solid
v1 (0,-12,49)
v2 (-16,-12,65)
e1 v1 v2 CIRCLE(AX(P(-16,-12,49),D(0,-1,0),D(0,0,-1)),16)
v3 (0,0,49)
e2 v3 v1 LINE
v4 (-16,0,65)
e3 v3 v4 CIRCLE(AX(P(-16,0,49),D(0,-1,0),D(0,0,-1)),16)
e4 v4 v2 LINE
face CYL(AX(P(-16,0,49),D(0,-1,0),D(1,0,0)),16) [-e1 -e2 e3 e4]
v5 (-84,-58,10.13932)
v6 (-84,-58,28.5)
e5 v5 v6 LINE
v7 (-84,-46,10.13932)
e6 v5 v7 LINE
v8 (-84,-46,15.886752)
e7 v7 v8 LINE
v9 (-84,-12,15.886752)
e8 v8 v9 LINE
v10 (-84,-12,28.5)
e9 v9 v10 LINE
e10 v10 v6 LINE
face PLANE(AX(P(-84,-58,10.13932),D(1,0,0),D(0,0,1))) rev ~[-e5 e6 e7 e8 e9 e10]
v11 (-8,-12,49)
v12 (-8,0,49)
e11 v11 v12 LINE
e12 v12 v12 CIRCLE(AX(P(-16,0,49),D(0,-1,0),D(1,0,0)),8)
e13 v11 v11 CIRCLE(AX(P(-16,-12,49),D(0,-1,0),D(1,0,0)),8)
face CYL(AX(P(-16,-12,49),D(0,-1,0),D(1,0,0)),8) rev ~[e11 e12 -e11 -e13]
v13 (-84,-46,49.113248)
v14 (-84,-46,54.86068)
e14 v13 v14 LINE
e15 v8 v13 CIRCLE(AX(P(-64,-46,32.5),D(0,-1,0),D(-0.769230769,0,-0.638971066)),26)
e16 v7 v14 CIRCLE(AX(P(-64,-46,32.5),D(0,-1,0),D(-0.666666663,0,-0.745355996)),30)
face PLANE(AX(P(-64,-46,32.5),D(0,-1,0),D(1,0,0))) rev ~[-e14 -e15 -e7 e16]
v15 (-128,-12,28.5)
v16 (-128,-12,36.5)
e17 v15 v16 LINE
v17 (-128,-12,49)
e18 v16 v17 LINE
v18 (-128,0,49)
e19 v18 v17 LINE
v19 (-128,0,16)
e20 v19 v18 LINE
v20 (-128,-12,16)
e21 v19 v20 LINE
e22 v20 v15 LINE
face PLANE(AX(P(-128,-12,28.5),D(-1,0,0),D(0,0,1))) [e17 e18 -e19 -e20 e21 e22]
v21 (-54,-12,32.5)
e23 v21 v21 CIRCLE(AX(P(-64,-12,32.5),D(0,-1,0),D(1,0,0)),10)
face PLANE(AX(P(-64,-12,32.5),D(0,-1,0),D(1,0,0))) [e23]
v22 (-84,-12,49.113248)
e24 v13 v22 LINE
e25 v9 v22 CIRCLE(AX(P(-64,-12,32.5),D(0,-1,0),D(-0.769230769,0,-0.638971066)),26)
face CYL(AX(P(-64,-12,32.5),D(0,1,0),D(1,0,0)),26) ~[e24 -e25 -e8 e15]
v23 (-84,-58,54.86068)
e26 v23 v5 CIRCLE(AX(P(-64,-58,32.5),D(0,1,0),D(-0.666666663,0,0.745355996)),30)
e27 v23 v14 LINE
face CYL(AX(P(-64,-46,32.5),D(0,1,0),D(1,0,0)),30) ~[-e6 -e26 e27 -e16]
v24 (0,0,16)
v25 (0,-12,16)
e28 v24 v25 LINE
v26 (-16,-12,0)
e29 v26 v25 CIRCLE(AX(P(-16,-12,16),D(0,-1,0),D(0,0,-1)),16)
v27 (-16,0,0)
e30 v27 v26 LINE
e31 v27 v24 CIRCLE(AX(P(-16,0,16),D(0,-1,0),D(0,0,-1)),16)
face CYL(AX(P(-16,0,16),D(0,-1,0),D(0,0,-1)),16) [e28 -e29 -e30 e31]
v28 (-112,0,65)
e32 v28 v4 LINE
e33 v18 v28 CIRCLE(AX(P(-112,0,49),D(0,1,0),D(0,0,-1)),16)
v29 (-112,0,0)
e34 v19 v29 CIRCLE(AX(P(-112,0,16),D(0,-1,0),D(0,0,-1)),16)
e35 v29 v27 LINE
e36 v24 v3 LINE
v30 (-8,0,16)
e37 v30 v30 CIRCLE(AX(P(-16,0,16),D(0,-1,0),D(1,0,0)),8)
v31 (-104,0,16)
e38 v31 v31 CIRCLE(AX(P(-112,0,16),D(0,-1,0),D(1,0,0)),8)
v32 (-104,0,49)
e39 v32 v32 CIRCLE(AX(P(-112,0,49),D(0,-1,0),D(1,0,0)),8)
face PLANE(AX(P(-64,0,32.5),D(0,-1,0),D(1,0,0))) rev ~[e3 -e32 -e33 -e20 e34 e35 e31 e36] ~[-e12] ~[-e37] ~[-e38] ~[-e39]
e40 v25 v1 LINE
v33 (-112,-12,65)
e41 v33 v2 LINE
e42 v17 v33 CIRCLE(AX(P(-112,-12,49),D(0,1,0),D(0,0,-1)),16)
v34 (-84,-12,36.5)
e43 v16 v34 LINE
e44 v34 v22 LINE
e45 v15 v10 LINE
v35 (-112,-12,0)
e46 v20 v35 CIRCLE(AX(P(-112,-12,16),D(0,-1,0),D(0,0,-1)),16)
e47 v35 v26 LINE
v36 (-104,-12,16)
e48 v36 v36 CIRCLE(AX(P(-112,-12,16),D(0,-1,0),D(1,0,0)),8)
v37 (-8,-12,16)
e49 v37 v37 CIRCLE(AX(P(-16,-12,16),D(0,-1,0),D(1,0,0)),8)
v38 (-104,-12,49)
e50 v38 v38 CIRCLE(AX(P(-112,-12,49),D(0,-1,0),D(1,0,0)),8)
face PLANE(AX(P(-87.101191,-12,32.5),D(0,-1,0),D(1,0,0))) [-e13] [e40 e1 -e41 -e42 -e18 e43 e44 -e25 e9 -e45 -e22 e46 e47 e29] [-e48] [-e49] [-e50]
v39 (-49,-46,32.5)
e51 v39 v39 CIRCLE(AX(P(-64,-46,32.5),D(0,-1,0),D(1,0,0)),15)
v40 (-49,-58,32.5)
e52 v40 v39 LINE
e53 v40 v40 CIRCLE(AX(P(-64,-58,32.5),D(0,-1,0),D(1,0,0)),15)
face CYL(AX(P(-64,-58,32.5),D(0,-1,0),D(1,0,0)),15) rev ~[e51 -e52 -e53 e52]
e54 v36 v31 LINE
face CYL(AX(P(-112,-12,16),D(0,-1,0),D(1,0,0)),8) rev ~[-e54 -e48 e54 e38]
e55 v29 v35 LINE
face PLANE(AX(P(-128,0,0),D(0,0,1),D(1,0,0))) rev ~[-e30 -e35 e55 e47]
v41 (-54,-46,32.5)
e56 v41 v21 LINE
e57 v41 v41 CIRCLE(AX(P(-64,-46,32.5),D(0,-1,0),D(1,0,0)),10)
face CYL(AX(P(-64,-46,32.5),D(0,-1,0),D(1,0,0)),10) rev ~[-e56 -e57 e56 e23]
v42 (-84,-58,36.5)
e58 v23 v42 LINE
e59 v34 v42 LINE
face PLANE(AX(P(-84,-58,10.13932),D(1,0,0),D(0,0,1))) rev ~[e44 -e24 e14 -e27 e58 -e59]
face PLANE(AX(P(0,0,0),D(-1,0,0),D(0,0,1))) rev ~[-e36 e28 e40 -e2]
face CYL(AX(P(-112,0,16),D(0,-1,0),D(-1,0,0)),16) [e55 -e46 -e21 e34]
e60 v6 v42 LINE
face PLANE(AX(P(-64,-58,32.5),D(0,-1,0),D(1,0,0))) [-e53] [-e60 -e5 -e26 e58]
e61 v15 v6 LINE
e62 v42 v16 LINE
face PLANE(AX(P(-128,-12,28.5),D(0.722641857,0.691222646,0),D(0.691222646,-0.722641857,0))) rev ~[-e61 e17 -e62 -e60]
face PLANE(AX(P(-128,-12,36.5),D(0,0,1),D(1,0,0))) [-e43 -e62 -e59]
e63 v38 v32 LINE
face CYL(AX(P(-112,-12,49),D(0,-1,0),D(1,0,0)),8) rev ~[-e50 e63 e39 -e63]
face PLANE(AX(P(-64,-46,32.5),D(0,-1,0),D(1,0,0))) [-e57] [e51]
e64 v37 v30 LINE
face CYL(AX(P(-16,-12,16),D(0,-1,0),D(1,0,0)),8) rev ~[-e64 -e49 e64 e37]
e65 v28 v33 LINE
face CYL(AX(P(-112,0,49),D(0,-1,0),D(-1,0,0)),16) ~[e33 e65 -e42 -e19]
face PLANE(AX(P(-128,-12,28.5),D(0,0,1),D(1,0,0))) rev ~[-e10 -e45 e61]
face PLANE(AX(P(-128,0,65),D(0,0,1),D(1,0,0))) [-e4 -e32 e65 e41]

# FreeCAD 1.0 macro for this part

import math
import FreeCAD as App
import Part
import Sketcher
Q = App.Units.Quantity


def edges_at(feature, points):
    """Names of the edges that pass closest to the given points."""
    edges = feature.Shape.Edges
    near = lambda p: min(range(len(edges)), key=lambda i: edges[i].distToShape(Part.Vertex(*p))[0])
    return sorted({f"Edge{near(p) + 1}" for p in points})


def add_polygon(sketch, points):
    """Adds a closed chain of lines whose ends are joined by coincident constraints."""
    first, n = sketch.GeometryCount, len(points)
    for a, b in zip(points, points[1:] + points[:1]):
        sketch.addGeometry(Part.LineSegment(App.Vector(*a, 0), App.Vector(*b, 0)), False)
    for i in range(n):
        sketch.addConstraint(Sketcher.Constraint("Coincident", first + i, 2, first + (i + 1) % n, 1))

doc = App.newDocument("Part")
params = doc.addObject("Spreadsheet::Sheet", "Params")
for row, (alias, value) in enumerate([
    ("sketch1_width", "128 mm"),
    ("sketch1_height", "65 mm"),
    ("pad1_length", "12 mm"),
    ("fillet_radius", "16 mm"),
    ("sketch2_diameter", "52 mm"),
    ("pad2_length", "34 mm"),
    ("sketch3_diameter", "60 mm"),
    ("pad3_length", "12 mm"),
    ("sketch4_diameter", "30 mm"),
    ("pocket1_length", "12 mm"),
    ("sketch5_diameter", "20 mm"),
    ("pocket2_length", "34 mm"),
    ("sketch6_radius", "30.000001 mm"),
    ("pocket3_length", "46 mm"),
    ("sketch7_width", "44 mm"),
    ("sketch7_height", "8 mm"),
    ("pad4_length", "46 mm"),
    ("sketch8_width", "44 mm"),
    ("sketch8_height", "46 mm"),
    ("pocket4_length", "25 mm"),
    ("sketch9_diameter", "16 mm"),
    ("pocket5_length", "25 mm"),
], start=1):
    params.set(f"A{row}", alias)
    params.set(f"B{row}", "=" + value)
    params.setAlias(f"B{row}", alias)

body = doc.addObject("PartDesign::Body", "Body")

sketch1 = body.newObject("Sketcher::SketchObject", "Sketch")
sketch1.AttachmentSupport = (doc.getObject("XZ_Plane"), [""])
sketch1.MapMode = "FlatFace"
add_polygon(sketch1, [(-128, 65), (-128, 0), (0, 0), (0, 65)])
sketch1.addConstraint([
    Sketcher.Constraint("Vertical", 0),
    Sketcher.Constraint("Horizontal", 1),
    Sketcher.Constraint("Vertical", 2),
    Sketcher.Constraint("Horizontal", 3),
    Sketcher.Constraint("Coincident", 1, 2, -1, 1),
    Sketcher.Constraint("DistanceX", 1, 1, 1, 2, Q("128 mm")),
    Sketcher.Constraint("DistanceY", 0, 2, 0, 1, Q("65 mm")),
])
sketch1.setExpression("Constraints[9]", "Params.sketch1_width")
sketch1.setExpression("Constraints[10]", "Params.sketch1_height")
pad1 = body.newObject("PartDesign::Pad", "Pad")
pad1.Profile = sketch1
pad1.setExpression("Length", "Params.pad1_length")
doc.recompute()

fillet = body.newObject("PartDesign::Fillet", "Fillet")
fillet.Base = (pad1, edges_at(pad1, [
    (-128, -6, 65),
    (-128, -6, 0),
    (0, -6, 65),
    (0, -6, 0),
]))
fillet.setExpression("Radius", "Params.fillet_radius")

sketch2 = body.newObject("Sketcher::SketchObject", "Sketch001")
sketch2.AttachmentSupport = (doc.getObject("XZ_Plane"), [""])
sketch2.MapMode = "FlatFace"
sketch2.AttachmentOffset = App.Placement(App.Vector(0, 0, 12), App.Rotation())
sketch2.addGeometry(Part.Circle(App.Vector(-64, 32.5, 0), App.Vector(0, 0, 1), 26), False)
sketch2.addConstraint([
    Sketcher.Constraint("Diameter", 0, Q("52 mm")),
    Sketcher.Constraint("DistanceX", 0, 3, -1, 1, Q("64 mm")),
    Sketcher.Constraint("DistanceY", -1, 1, 0, 3, Q("32.5 mm")),
])
sketch2.setExpression("Constraints[0]", "Params.sketch2_diameter")
pad2 = body.newObject("PartDesign::Pad", "Pad001")
pad2.Profile = sketch2
pad2.setExpression("Length", "Params.pad2_length")

sketch3 = body.newObject("Sketcher::SketchObject", "Sketch002")
sketch3.AttachmentSupport = (doc.getObject("XZ_Plane"), [""])
sketch3.MapMode = "FlatFace"
sketch3.AttachmentOffset = App.Placement(App.Vector(0, 0, 46), App.Rotation())
sketch3.addGeometry(Part.Circle(App.Vector(-64, 32.5, 0), App.Vector(0, 0, 1), 30), False)
sketch3.addConstraint([
    Sketcher.Constraint("Diameter", 0, Q("60 mm")),
    Sketcher.Constraint("DistanceX", 0, 3, -1, 1, Q("64 mm")),
    Sketcher.Constraint("DistanceY", -1, 1, 0, 3, Q("32.5 mm")),
])
sketch3.setExpression("Constraints[0]", "Params.sketch3_diameter")
pad3 = body.newObject("PartDesign::Pad", "Pad002")
pad3.Profile = sketch3
pad3.setExpression("Length", "Params.pad3_length")

sketch4 = body.newObject("Sketcher::SketchObject", "Sketch003")
sketch4.AttachmentSupport = (doc.getObject("XZ_Plane"), [""])
sketch4.MapMode = "FlatFace"
sketch4.AttachmentOffset = App.Placement(App.Vector(0, 0, 58), App.Rotation())
sketch4.addGeometry(Part.Circle(App.Vector(-64, 32.5, 0), App.Vector(0, 0, 1), 15), False)
sketch4.addConstraint([
    Sketcher.Constraint("Diameter", 0, Q("30 mm")),
    Sketcher.Constraint("DistanceX", 0, 3, -1, 1, Q("64 mm")),
    Sketcher.Constraint("DistanceY", -1, 1, 0, 3, Q("32.5 mm")),
])
sketch4.setExpression("Constraints[0]", "Params.sketch4_diameter")
pocket1 = body.newObject("PartDesign::Pocket", "Pocket")
pocket1.Profile = sketch4
pocket1.setExpression("Length", "Params.pocket1_length")

sketch5 = body.newObject("Sketcher::SketchObject", "Sketch004")
sketch5.AttachmentSupport = (doc.getObject("XZ_Plane"), [""])
sketch5.MapMode = "FlatFace"
sketch5.AttachmentOffset = App.Placement(App.Vector(0, 0, 46), App.Rotation())
sketch5.addGeometry(Part.Circle(App.Vector(-64, 32.5, 0), App.Vector(0, 0, 1), 10), False)
sketch5.addConstraint([
    Sketcher.Constraint("Diameter", 0, Q("20 mm")),
    Sketcher.Constraint("DistanceX", 0, 3, -1, 1, Q("64 mm")),
    Sketcher.Constraint("DistanceY", -1, 1, 0, 3, Q("32.5 mm")),
])
sketch5.setExpression("Constraints[0]", "Params.sketch5_diameter")
pocket2 = body.newObject("PartDesign::Pocket", "Pocket001")
pocket2.Profile = sketch5
pocket2.setExpression("Length", "Params.pocket2_length")

sketch6 = body.newObject("Sketcher::SketchObject", "Sketch005")
sketch6.AttachmentSupport = (doc.getObject("XZ_Plane"), [""])
sketch6.MapMode = "FlatFace"
sketch6.AttachmentOffset = App.Placement(App.Vector(0, 0, 58), App.Rotation())
sketch6.addGeometry([
    Part.LineSegment(App.Vector(-84, 10.13932, 0), App.Vector(-84, 54.86068, 0)),
    Part.ArcOfCircle(Part.Circle(App.Vector(-63.999999, 32.5, 0), App.Vector(0, 0, 1), 30.000001), math.radians(131.810315), math.radians(228.189685)),
], False)
sketch6.addConstraint([
    Sketcher.Constraint("Coincident", 0, 1, 1, 2),
    Sketcher.Constraint("Coincident", 1, 1, 0, 2),
    Sketcher.Constraint("Vertical", 0),
    Sketcher.Constraint("Radius", 1, Q("30.000001 mm")),
    Sketcher.Constraint("DistanceX", 1, 3, -1, 1, Q("63.999999 mm")),
    Sketcher.Constraint("DistanceX", 0, 1, -1, 1, Q("84 mm")),
    Sketcher.Constraint("DistanceY", -1, 1, 1, 3, Q("32.5 mm")),
])
sketch6.setExpression("Constraints[3]", "Params.sketch6_radius")
pocket3 = body.newObject("PartDesign::Pocket", "Pocket002")
pocket3.Profile = sketch6
pocket3.setExpression("Length", "Params.pocket3_length")

sketch7 = body.newObject("Sketcher::SketchObject", "Sketch006")
sketch7.AttachmentSupport = (doc.getObject("XZ_Plane"), [""])
sketch7.MapMode = "FlatFace"
sketch7.AttachmentOffset = App.Placement(App.Vector(0, 0, 12), App.Rotation())
add_polygon(sketch7, [(-128, 36.5), (-128, 28.5), (-84, 28.5), (-84, 36.5)])
sketch7.addConstraint([
    Sketcher.Constraint("Vertical", 0),
    Sketcher.Constraint("Horizontal", 1),
    Sketcher.Constraint("Vertical", 2),
    Sketcher.Constraint("Horizontal", 3),
    Sketcher.Constraint("DistanceX", 1, 1, 1, 2, Q("44 mm")),
    Sketcher.Constraint("DistanceY", 0, 2, 0, 1, Q("8 mm")),
    Sketcher.Constraint("DistanceX", 0, 2, -1, 1, Q("128 mm")),
    Sketcher.Constraint("DistanceY", -1, 1, 0, 2, Q("28.5 mm")),
])
sketch7.setExpression("Constraints[8]", "Params.sketch7_width")
sketch7.setExpression("Constraints[9]", "Params.sketch7_height")
pad4 = body.newObject("PartDesign::Pad", "Pad003")
pad4.Profile = sketch7
pad4.setExpression("Length", "Params.pad4_length")

sketch8 = body.newObject("Sketcher::SketchObject", "Sketch007")
sketch8.AttachmentSupport = (doc.getObject("XY_Plane"), [""])
sketch8.MapMode = "FlatFace"
sketch8.AttachmentOffset = App.Placement(App.Vector(0, 0, 28.5), App.Rotation())
add_polygon(sketch8, [(-128, -12), (-84, -58), (-128, -58)])
sketch8.addConstraint([
    Sketcher.Constraint("Horizontal", 1),
    Sketcher.Constraint("Vertical", 2),
    Sketcher.Constraint("DistanceX", 1, 2, 1, 1, Q("44 mm")),
    Sketcher.Constraint("DistanceY", 2, 1, 2, 2, Q("46 mm")),
    Sketcher.Constraint("DistanceX", 0, 2, -1, 1, Q("84 mm")),
    Sketcher.Constraint("DistanceY", 0, 2, -1, 1, Q("58 mm")),
])
sketch8.setExpression("Constraints[5]", "Params.sketch8_width")
sketch8.setExpression("Constraints[6]", "Params.sketch8_height")
pocket4 = body.newObject("PartDesign::Pocket", "Pocket003")
pocket4.Profile = sketch8
pocket4.setExpression("Length", "Params.pocket4_length")
pocket4.Reversed = True

sketch9 = body.newObject("Sketcher::SketchObject", "Sketch008")
sketch9.AttachmentSupport = (doc.getObject("XZ_Plane"), [""])
sketch9.MapMode = "FlatFace"
sketch9.AttachmentOffset = App.Placement(App.Vector(0, 0, 12), App.Rotation())
sketch9.addGeometry([
    Part.Circle(App.Vector(-16, 49, 0), App.Vector(0, 0, 1), 8),
    Part.Circle(App.Vector(-16, 16, 0), App.Vector(0, 0, 1), 8),
    Part.Circle(App.Vector(-112, 49, 0), App.Vector(0, 0, 1), 8),
    Part.Circle(App.Vector(-112, 16, 0), App.Vector(0, 0, 1), 8),
], False)
sketch9.addConstraint([
    Sketcher.Constraint("Equal", 0, 1),
    Sketcher.Constraint("Equal", 1, 2),
    Sketcher.Constraint("Equal", 2, 3),
    Sketcher.Constraint("Horizontal", 0, 3, 2, 3),
    Sketcher.Constraint("Horizontal", 1, 3, 3, 3),
    Sketcher.Constraint("Vertical", 0, 3, 1, 3),
    Sketcher.Constraint("Vertical", 2, 3, 3, 3),
    Sketcher.Constraint("Diameter", 0, Q("16 mm")),
    Sketcher.Constraint("DistanceX", 0, 3, -1, 1, Q("16 mm")),
    Sketcher.Constraint("DistanceY", -1, 1, 0, 3, Q("49 mm")),
    Sketcher.Constraint("DistanceY", -1, 1, 1, 3, Q("16 mm")),
    Sketcher.Constraint("DistanceX", 2, 3, -1, 1, Q("112 mm")),
])
sketch9.setExpression("Constraints[7]", "Params.sketch9_diameter")
pocket5 = body.newObject("PartDesign::Pocket", "Pocket004")
pocket5.Profile = sketch9
pocket5.setExpression("Length", "Params.pocket5_length")

doc.recompute()
